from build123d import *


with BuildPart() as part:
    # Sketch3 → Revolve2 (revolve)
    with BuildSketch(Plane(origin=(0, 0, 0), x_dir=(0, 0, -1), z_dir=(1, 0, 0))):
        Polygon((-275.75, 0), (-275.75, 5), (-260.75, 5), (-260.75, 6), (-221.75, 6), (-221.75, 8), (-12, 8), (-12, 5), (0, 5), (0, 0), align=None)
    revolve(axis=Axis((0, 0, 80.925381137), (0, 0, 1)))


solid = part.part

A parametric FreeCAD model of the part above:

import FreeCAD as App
import Part
import Sketcher

doc = App.newDocument("Part")
params = doc.addObject("Spreadsheet::Sheet", "Params")
for row, (alias, value) in enumerate([
    ("sketch1_width", "5 mm"),
    ("sketch1_width2", "3 mm"),
    ("sketch1_width3", "2 mm"),
    ("sketch1_height", "12 mm"),
    ("sketch1_height2", "39 mm"),
    ("revolution_angle", "360 deg"),
], start=1):
    params.set(f"A{row}", alias)
    params.set(f"B{row}", "=" + value)
    params.setAlias(f"B{row}", alias)

body = doc.addObject("PartDesign::Body", "Body")

# Sketch on YZ plane
sketch1 = doc.addObject("Sketcher::SketchObject", "Sketch")
body.addObject(sketch1)
sketch1.AttachmentSupport = (doc.YZ_Plane, [""])
sketch1.MapMode = "FlatFace"
sketch1.addGeometry(Part.LineSegment(App.Vector(5, 275.8, 0), App.Vector(0, 275.8, 0)), False)
sketch1.addGeometry(Part.LineSegment(App.Vector(0, 275.8, 0), App.Vector(0, 0, 0)), False)
sketch1.addGeometry(Part.LineSegment(App.Vector(0, 0, 0), App.Vector(5, 0, 0)), False)
sketch1.addGeometry(Part.LineSegment(App.Vector(5, 0, 0), App.Vector(5, 12, 0)), False)
sketch1.addGeometry(Part.LineSegment(App.Vector(5, 12, 0), App.Vector(8, 12, 0)), False)
sketch1.addGeometry(Part.LineSegment(App.Vector(8, 12, 0), App.Vector(8, 221.8, 0)), False)
sketch1.addGeometry(Part.LineSegment(App.Vector(8, 221.8, 0), App.Vector(6, 221.8, 0)), False)
sketch1.addGeometry(Part.LineSegment(App.Vector(6, 221.8, 0), App.Vector(6, 260.8, 0)), False)
sketch1.addGeometry(Part.LineSegment(App.Vector(6, 260.8, 0), App.Vector(5, 260.8, 0)), False)
sketch1.addGeometry(Part.LineSegment(App.Vector(5, 260.8, 0), App.Vector(5, 275.8, 0)), False)
sketch1.addConstraint(Sketcher.Constraint("Coincident", 0, 2, 1, 1))
sketch1.addConstraint(Sketcher.Constraint("Coincident", 1, 2, 2, 1))
sketch1.addConstraint(Sketcher.Constraint("Coincident", 2, 2, 3, 1))
sketch1.addConstraint(Sketcher.Constraint("Coincident", 3, 2, 4, 1))
sketch1.addConstraint(Sketcher.Constraint("Coincident", 4, 2, 5, 1))
sketch1.addConstraint(Sketcher.Constraint("Coincident", 5, 2, 6, 1))
sketch1.addConstraint(Sketcher.Constraint("Coincident", 6, 2, 7, 1))
sketch1.addConstraint(Sketcher.Constraint("Coincident", 7, 2, 8, 1))
sketch1.addConstraint(Sketcher.Constraint("Coincident", 8, 2, 9, 1))
sketch1.addConstraint(Sketcher.Constraint("Coincident", 9, 2, 0, 1))
sketch1.addConstraint(Sketcher.Constraint("Horizontal", 0))
sketch1.addConstraint(Sketcher.Constraint("Vertical", 1))
sketch1.addConstraint(Sketcher.Constraint("Horizontal", 2))
sketch1.addConstraint(Sketcher.Constraint("Vertical", 3))
sketch1.addConstraint(Sketcher.Constraint("Horizontal", 4))
sketch1.addConstraint(Sketcher.Constraint("Vertical", 5))
sketch1.addConstraint(Sketcher.Constraint("Horizontal", 6))
sketch1.addConstraint(Sketcher.Constraint("Vertical", 7))
sketch1.addConstraint(Sketcher.Constraint("Horizontal", 8))
sketch1.addConstraint(Sketcher.Constraint("Vertical", 9))
sketch1.addConstraint(Sketcher.Constraint("Coincident", 1, 2, -1, 1))
sketch1.addConstraint(Sketcher.Constraint("Vertical", 3, 2, 8, 2))
sketch1.addConstraint(Sketcher.Constraint("DistanceX", 0, 2, 0, 1, 5.0))
sketch1.addConstraint(Sketcher.Constraint("DistanceX", 4, 1, 4, 2, 3.0))
sketch1.addConstraint(Sketcher.Constraint("DistanceX", 6, 2, 6, 1, 2.0))
sketch1.addConstraint(Sketcher.Constraint("DistanceY", 3, 1, 3, 2, 12.0))
sketch1.addConstraint(Sketcher.Constraint("DistanceY", 7, 1, 7, 2, 39.0))
sketch1.addConstraint(Sketcher.Constraint("DistanceY", 9, 1, 9, 2, 15.0))
sketch1.addConstraint(Sketcher.Constraint("DistanceY", 1, 2, 1, 1, 275.75))
sketch1.setExpression("Constraints[22]", "Params.sketch1_width")
sketch1.setExpression("Constraints[23]", "Params.sketch1_width2")
sketch1.setExpression("Constraints[24]", "Params.sketch1_width3")
sketch1.setExpression("Constraints[25]", "Params.sketch1_height")
sketch1.setExpression("Constraints[26]", "Params.sketch1_height2")
revolution = doc.addObject("PartDesign::Revolution", "Revolution")
body.addObject(revolution)
revolution.Profile = sketch1
revolution.ReferenceAxis = (sketch1, ["V_Axis"])
revolution.setExpression("Angle", "Params.revolution_angle")

doc.recompute()
